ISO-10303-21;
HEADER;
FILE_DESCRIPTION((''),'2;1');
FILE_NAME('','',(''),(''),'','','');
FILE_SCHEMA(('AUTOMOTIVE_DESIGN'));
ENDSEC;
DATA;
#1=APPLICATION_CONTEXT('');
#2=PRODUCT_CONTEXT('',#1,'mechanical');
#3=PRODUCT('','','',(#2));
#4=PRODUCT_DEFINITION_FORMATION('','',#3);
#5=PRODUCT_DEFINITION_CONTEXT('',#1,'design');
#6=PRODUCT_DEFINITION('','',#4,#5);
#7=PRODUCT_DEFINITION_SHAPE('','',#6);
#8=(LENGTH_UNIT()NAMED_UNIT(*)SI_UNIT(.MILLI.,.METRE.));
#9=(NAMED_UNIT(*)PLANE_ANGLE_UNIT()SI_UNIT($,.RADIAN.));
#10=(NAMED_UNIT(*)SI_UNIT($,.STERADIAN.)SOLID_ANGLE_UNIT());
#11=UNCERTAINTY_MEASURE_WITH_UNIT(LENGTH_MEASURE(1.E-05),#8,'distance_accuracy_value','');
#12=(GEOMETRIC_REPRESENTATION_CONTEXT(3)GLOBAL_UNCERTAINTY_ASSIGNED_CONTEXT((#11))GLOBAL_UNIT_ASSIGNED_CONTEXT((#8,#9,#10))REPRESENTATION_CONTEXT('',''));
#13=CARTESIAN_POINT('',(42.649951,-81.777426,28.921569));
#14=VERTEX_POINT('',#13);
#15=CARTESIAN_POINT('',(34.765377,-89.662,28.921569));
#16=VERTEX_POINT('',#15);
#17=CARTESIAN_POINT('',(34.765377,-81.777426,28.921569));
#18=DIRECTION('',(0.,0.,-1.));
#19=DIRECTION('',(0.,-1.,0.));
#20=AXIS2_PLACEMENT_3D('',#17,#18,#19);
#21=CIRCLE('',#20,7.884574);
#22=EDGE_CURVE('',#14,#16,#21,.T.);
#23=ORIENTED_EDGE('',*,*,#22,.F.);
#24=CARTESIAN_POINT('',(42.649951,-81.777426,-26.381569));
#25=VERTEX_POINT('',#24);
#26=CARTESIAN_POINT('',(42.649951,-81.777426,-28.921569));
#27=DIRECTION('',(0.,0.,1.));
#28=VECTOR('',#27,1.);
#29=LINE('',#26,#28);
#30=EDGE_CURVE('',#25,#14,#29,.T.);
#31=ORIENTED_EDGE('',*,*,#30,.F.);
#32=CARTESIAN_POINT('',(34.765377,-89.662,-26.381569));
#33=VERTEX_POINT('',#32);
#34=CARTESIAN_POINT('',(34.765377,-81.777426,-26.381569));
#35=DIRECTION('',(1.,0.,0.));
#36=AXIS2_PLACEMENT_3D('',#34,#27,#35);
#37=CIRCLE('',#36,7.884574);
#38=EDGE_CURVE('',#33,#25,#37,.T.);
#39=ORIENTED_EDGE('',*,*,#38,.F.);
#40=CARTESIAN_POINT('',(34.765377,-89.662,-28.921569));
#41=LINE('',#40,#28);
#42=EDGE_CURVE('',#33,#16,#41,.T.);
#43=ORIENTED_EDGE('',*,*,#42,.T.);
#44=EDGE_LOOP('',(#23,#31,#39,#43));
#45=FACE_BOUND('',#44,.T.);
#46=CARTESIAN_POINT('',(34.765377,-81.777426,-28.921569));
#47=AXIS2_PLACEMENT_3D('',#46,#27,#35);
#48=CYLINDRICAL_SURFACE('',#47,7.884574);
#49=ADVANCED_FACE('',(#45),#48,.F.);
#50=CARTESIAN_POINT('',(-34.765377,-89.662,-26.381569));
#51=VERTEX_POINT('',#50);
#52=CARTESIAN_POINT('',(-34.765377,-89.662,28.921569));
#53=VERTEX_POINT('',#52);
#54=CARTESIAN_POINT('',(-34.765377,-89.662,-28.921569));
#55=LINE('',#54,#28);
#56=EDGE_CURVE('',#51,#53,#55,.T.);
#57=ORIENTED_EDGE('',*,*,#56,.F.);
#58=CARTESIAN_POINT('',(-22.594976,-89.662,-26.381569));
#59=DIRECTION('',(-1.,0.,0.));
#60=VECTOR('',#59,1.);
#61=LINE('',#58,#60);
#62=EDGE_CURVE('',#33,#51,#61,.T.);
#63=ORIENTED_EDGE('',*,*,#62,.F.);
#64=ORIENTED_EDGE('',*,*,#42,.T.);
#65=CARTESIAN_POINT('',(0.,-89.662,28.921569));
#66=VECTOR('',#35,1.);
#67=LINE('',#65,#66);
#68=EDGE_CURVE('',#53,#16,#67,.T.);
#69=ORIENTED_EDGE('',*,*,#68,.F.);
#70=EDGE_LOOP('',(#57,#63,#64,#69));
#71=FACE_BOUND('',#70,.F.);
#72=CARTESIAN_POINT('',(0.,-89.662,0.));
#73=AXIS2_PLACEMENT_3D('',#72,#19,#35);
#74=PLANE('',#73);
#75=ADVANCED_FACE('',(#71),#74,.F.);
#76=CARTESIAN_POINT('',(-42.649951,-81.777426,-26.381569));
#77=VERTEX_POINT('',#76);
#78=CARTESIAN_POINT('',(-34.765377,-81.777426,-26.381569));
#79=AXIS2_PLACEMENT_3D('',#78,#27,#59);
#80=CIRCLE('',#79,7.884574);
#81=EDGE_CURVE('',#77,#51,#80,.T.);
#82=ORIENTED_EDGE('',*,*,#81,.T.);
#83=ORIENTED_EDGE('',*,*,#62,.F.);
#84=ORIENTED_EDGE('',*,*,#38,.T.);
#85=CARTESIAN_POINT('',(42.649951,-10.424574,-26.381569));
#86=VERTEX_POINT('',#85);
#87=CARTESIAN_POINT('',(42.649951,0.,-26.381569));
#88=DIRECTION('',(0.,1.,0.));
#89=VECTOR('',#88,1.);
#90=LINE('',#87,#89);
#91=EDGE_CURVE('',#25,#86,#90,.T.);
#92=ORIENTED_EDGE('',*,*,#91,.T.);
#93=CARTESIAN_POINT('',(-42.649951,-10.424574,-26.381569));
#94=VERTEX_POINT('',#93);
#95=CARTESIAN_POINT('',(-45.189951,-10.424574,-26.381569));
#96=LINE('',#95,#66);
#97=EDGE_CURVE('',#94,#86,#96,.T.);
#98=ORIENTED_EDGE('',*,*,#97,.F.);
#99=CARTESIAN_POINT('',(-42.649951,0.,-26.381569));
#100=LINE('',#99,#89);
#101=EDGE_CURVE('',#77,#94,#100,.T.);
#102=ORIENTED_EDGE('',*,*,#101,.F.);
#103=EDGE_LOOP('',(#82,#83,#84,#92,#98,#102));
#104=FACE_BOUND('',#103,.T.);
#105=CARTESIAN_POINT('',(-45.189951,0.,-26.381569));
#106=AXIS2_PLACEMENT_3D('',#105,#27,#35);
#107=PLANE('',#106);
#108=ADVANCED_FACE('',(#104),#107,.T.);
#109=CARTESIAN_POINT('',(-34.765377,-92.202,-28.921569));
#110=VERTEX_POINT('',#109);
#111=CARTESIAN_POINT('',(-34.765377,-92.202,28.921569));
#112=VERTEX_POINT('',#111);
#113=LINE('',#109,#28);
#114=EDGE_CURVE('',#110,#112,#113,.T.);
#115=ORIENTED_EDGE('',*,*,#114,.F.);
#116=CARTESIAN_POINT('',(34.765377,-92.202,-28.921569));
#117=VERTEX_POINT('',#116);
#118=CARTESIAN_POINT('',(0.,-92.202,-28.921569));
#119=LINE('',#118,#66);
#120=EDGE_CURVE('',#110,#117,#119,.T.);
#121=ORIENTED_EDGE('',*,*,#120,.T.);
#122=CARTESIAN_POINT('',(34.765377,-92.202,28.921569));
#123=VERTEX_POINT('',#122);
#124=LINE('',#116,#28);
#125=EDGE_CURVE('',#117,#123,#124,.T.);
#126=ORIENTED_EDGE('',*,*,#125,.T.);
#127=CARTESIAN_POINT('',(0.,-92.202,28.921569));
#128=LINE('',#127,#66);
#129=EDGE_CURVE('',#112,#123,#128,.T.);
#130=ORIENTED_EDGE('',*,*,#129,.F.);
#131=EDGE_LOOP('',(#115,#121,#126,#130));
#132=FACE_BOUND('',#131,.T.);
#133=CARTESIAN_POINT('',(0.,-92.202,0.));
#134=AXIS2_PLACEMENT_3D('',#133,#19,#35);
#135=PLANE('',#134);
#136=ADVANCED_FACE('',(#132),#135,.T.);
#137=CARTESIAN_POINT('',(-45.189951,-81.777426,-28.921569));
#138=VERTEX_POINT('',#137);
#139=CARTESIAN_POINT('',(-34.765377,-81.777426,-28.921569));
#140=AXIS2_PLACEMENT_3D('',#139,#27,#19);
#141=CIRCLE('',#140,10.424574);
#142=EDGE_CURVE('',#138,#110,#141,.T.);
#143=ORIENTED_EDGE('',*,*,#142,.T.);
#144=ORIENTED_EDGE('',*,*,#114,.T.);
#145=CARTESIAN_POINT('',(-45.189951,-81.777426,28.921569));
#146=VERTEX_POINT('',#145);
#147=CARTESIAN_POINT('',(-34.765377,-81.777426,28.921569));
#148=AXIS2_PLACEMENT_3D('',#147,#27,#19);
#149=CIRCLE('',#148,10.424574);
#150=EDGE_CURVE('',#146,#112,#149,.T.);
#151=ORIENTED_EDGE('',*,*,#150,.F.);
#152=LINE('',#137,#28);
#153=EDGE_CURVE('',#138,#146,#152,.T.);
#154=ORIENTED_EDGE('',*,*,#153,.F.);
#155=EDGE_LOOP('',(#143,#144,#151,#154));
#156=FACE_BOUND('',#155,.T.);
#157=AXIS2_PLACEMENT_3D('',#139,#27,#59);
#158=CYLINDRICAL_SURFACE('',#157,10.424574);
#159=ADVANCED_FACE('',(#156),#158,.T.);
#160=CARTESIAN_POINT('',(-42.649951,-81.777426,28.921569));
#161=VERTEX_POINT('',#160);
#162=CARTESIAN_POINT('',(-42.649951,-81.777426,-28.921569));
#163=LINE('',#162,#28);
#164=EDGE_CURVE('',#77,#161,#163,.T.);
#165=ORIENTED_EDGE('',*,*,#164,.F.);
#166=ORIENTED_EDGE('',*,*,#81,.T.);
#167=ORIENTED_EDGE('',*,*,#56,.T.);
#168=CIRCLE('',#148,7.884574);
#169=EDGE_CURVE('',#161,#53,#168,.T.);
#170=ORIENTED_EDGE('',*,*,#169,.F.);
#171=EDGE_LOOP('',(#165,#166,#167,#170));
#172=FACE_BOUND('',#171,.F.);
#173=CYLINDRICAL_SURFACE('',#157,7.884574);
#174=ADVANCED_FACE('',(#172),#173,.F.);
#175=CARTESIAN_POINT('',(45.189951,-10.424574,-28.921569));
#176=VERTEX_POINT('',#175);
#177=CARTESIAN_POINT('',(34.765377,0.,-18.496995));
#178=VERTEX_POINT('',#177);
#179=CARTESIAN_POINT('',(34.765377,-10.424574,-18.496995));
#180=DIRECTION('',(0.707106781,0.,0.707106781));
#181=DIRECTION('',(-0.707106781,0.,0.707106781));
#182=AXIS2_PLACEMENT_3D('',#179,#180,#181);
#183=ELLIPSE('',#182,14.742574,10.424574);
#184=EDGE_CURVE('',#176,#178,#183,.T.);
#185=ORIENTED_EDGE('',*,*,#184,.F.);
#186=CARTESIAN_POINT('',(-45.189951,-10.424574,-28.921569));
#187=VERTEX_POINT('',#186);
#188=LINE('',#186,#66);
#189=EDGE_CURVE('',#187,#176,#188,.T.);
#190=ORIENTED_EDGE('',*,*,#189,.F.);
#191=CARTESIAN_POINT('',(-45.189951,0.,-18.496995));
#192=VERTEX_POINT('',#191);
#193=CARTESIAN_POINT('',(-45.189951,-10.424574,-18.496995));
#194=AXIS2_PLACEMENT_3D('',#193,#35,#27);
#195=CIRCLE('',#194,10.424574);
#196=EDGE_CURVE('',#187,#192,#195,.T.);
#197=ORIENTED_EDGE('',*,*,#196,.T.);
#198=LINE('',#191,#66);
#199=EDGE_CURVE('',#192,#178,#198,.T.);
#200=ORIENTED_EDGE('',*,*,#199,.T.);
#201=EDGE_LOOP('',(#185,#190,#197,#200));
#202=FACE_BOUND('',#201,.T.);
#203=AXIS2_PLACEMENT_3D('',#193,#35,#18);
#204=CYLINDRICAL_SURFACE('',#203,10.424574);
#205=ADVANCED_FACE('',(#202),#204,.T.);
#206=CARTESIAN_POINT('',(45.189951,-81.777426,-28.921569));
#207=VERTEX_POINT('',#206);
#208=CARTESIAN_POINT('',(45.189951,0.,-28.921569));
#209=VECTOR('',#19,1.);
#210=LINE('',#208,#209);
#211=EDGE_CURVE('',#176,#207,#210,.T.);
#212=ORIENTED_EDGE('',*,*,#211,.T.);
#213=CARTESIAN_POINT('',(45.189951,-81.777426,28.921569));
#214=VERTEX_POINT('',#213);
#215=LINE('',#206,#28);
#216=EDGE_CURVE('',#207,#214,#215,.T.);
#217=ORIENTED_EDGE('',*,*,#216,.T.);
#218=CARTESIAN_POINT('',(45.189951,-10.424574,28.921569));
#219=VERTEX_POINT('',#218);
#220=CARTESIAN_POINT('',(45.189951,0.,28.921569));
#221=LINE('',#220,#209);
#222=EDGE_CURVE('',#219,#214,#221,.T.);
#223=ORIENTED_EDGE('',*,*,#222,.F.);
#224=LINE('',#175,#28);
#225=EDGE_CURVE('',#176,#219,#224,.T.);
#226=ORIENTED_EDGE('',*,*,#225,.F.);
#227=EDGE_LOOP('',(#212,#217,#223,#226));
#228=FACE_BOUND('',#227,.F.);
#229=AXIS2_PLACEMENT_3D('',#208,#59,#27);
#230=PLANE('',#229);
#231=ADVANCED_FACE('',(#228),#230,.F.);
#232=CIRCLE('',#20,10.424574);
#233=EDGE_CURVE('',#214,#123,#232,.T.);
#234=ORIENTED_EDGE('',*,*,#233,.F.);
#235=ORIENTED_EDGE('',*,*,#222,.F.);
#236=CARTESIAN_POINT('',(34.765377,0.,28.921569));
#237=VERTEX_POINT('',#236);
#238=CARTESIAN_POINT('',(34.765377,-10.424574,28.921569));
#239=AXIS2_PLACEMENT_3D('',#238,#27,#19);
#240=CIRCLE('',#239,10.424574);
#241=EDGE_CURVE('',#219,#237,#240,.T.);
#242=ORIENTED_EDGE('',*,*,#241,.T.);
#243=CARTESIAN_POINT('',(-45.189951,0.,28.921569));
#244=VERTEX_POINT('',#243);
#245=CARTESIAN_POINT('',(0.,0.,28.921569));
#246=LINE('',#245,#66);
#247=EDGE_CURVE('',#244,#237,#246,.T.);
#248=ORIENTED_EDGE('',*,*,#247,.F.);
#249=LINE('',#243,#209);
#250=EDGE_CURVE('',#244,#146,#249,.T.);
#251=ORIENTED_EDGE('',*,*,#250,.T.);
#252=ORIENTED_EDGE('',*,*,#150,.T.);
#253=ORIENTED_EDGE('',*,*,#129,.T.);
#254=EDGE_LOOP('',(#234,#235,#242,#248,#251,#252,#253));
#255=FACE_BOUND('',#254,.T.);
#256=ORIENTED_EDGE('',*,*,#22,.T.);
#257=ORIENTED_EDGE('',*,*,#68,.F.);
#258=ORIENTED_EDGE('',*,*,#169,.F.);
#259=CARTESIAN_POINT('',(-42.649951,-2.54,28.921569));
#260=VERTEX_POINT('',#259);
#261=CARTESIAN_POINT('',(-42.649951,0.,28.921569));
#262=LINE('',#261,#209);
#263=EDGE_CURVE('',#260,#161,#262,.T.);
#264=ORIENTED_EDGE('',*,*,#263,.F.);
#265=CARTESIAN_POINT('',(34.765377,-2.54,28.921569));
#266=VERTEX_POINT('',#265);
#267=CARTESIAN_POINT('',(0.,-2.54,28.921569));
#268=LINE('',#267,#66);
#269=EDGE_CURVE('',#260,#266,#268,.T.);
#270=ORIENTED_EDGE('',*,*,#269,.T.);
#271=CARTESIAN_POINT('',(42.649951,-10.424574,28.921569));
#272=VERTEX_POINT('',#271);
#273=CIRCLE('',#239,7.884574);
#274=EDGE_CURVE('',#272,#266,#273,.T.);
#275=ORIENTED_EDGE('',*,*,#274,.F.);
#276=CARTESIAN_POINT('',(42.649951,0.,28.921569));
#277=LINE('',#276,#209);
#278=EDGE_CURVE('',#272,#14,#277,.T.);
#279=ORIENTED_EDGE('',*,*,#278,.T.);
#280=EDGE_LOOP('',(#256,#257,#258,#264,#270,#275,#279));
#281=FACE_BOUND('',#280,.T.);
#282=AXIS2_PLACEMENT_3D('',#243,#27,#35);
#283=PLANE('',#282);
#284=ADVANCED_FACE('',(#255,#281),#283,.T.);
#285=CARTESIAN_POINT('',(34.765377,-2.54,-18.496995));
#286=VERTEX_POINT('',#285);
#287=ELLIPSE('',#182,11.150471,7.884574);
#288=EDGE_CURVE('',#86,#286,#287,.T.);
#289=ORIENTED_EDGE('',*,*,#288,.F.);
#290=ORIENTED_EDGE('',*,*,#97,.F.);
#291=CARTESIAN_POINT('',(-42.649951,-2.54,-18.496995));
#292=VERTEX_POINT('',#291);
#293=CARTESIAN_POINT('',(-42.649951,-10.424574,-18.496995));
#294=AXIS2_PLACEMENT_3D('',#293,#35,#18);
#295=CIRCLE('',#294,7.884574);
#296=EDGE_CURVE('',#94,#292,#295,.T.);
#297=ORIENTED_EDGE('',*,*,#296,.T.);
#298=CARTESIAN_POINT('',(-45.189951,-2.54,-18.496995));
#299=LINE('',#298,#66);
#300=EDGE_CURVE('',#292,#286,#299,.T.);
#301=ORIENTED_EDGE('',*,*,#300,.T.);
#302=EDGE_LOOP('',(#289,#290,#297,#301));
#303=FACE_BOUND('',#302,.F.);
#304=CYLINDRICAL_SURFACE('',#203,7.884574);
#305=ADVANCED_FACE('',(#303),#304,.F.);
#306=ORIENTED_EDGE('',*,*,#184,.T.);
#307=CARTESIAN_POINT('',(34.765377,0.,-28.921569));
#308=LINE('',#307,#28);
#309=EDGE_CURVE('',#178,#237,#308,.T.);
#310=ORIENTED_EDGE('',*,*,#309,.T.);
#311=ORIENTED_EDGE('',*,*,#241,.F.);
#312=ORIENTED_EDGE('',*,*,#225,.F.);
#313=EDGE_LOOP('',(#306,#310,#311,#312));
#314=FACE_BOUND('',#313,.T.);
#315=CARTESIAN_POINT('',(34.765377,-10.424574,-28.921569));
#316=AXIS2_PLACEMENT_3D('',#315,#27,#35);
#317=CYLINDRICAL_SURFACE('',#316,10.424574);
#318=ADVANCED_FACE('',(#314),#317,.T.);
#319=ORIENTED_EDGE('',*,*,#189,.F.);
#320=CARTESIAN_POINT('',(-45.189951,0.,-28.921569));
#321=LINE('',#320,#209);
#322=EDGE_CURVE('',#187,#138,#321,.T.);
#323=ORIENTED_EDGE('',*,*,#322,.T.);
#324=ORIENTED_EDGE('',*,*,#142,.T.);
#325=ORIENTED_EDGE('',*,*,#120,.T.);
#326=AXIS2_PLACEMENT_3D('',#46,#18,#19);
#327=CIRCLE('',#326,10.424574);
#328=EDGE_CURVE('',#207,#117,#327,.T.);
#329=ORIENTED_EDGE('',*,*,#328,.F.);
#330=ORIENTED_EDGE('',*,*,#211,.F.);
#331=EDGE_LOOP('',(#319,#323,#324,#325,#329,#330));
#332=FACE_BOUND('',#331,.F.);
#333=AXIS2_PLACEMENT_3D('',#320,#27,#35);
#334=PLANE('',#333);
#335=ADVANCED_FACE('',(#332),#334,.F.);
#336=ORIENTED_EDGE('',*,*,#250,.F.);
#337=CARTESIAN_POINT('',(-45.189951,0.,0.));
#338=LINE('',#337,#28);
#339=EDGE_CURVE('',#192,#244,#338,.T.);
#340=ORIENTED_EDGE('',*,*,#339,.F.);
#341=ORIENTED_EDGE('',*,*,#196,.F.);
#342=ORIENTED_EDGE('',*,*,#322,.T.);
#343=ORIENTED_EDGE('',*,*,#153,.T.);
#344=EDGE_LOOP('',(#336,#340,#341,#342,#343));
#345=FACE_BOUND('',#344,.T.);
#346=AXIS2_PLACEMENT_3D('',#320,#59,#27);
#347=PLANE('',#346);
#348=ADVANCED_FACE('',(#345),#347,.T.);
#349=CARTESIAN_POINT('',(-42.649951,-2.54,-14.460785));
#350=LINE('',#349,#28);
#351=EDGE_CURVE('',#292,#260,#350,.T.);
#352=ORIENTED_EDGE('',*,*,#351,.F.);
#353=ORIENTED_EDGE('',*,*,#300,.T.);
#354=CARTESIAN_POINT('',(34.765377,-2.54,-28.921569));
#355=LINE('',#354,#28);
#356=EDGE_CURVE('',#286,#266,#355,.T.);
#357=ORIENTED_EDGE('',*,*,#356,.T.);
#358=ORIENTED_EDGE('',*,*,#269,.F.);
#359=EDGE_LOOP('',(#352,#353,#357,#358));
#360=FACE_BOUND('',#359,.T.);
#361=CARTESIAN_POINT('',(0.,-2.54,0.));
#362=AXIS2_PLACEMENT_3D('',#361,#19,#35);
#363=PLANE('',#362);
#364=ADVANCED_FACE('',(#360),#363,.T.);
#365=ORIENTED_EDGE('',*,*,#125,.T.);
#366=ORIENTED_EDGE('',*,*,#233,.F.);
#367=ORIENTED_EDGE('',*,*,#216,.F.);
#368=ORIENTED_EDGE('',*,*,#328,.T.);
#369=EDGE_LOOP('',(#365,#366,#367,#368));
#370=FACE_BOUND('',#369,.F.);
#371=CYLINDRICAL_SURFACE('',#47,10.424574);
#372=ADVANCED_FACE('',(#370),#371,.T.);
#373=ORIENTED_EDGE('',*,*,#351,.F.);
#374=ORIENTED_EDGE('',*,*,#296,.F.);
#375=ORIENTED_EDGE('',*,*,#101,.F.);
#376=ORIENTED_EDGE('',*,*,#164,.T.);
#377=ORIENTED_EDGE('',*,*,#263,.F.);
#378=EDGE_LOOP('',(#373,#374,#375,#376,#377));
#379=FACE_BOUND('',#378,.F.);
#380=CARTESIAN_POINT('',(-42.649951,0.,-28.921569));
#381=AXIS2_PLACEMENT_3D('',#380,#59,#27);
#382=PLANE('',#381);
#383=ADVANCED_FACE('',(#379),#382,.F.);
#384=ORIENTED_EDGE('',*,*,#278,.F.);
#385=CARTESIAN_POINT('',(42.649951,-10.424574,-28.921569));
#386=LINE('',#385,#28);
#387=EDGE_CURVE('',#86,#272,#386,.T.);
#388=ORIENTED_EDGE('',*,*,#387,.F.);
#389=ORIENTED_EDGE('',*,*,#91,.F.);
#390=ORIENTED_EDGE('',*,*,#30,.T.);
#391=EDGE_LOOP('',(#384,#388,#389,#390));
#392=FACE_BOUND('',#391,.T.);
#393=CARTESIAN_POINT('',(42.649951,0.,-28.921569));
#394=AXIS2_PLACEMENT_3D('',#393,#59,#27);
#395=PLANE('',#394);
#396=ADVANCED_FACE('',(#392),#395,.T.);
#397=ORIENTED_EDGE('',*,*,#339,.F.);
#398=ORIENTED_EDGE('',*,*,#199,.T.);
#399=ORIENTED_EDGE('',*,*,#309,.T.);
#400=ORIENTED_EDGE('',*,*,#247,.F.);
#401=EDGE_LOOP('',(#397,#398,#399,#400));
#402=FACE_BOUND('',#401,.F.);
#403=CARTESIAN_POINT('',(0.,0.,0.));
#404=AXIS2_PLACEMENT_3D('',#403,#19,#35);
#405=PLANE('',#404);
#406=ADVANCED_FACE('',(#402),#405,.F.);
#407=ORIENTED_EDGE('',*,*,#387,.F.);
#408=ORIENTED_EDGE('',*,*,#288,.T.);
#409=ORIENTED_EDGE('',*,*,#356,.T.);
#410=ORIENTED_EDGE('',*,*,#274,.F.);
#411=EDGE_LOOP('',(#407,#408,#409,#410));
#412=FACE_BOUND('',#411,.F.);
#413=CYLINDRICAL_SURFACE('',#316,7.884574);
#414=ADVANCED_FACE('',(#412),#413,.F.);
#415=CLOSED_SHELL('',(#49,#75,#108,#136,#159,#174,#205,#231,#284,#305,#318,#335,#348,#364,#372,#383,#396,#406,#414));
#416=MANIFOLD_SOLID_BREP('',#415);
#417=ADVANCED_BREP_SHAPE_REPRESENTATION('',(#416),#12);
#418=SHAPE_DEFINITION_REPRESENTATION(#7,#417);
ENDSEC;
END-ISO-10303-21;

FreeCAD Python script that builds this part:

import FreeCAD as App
import Part
import Sketcher

V = App.Vector
Q = App.Units.Quantity


def edges_at(feature, points):
    """Names of the edges that pass closest to the given points."""
    edges = feature.Shape.Edges
    near = lambda p: min(range(len(edges)), key=lambda i: edges[i].distToShape(Part.Vertex(*p))[0])
    return sorted({f"Edge{near(p) + 1}" for p in points})


def faces_at(feature, points):
    """Names of the faces that lie closest to the given points."""
    faces = feature.Shape.Faces
    near = lambda p: min(range(len(faces)), key=lambda i: faces[i].distToShape(Part.Vertex(*p))[0])
    return sorted({f"Face{near(p) + 1}" for p in points})


def add_polygon(sketch, points):
    """Adds a closed chain of lines whose ends are joined by coincident constraints."""
    first, n = sketch.GeometryCount, len(points)
    for a, b in zip(points, points[1:] + points[:1]):
        sketch.addGeometry(Part.LineSegment(App.Vector(*a, 0), App.Vector(*b, 0)), False)
    for i in range(n):
        sketch.addConstraint(Sketcher.Constraint("Coincident", first + i, 2, first + (i + 1) % n, 1))

doc = App.newDocument("Part")
body = doc.addObject("PartDesign::Body", "Body")

sketch1 = body.newObject("Sketcher::SketchObject", "Sketch")
sketch1.AttachmentSupport = (doc.getObject("XZ_Plane"), [""])
sketch1.MapMode = "FlatFace"
add_polygon(sketch1, [(-45, 29), (-45, -29), (45, -29), (45, 29)])
sketch1.addConstraint(Sketcher.Constraint("Vertical", 0))
sketch1.addConstraint(Sketcher.Constraint("Horizontal", 1))
sketch1.addConstraint(Sketcher.Constraint("Vertical", 2))
sketch1.addConstraint(Sketcher.Constraint("Horizontal", 3))
sketch1.addConstraint(Sketcher.Constraint("Symmetric", 0, 2, 2, 2, -1, 1))
sketch1.addConstraint(Sketcher.Constraint("DistanceX", 1, 1, 1, 2, Q("90.379902 mm")))
sketch1.addConstraint(Sketcher.Constraint("DistanceY", 0, 2, 0, 1, Q("57.843138 mm")))
pad1 = body.newObject("PartDesign::Pad", "Pad")
pad1.Profile = sketch1
pad1.Length = Q("3.63 in")
doc.recompute()

fillet = body.newObject("PartDesign::Fillet", "Fillet")
fillet.Base = (pad1, edges_at(pad1, [
    (45.19, -92.202, 0),
    (-45.19, -92.202, 0),
    (45.19, 0, 0),
    (0, 0, -28.922),
]))
fillet.Radius = 10.424574
doc.recompute()

thickness = body.newObject("PartDesign::Thickness", "Thickness")
thickness.Base = (fillet, faces_at(fillet, [(0, -46.101, 28.922)]))
thickness.Value = Q("0.1 in")
thickness.Reversed = True
thickness.Join = "Arc"

doc.recompute()
